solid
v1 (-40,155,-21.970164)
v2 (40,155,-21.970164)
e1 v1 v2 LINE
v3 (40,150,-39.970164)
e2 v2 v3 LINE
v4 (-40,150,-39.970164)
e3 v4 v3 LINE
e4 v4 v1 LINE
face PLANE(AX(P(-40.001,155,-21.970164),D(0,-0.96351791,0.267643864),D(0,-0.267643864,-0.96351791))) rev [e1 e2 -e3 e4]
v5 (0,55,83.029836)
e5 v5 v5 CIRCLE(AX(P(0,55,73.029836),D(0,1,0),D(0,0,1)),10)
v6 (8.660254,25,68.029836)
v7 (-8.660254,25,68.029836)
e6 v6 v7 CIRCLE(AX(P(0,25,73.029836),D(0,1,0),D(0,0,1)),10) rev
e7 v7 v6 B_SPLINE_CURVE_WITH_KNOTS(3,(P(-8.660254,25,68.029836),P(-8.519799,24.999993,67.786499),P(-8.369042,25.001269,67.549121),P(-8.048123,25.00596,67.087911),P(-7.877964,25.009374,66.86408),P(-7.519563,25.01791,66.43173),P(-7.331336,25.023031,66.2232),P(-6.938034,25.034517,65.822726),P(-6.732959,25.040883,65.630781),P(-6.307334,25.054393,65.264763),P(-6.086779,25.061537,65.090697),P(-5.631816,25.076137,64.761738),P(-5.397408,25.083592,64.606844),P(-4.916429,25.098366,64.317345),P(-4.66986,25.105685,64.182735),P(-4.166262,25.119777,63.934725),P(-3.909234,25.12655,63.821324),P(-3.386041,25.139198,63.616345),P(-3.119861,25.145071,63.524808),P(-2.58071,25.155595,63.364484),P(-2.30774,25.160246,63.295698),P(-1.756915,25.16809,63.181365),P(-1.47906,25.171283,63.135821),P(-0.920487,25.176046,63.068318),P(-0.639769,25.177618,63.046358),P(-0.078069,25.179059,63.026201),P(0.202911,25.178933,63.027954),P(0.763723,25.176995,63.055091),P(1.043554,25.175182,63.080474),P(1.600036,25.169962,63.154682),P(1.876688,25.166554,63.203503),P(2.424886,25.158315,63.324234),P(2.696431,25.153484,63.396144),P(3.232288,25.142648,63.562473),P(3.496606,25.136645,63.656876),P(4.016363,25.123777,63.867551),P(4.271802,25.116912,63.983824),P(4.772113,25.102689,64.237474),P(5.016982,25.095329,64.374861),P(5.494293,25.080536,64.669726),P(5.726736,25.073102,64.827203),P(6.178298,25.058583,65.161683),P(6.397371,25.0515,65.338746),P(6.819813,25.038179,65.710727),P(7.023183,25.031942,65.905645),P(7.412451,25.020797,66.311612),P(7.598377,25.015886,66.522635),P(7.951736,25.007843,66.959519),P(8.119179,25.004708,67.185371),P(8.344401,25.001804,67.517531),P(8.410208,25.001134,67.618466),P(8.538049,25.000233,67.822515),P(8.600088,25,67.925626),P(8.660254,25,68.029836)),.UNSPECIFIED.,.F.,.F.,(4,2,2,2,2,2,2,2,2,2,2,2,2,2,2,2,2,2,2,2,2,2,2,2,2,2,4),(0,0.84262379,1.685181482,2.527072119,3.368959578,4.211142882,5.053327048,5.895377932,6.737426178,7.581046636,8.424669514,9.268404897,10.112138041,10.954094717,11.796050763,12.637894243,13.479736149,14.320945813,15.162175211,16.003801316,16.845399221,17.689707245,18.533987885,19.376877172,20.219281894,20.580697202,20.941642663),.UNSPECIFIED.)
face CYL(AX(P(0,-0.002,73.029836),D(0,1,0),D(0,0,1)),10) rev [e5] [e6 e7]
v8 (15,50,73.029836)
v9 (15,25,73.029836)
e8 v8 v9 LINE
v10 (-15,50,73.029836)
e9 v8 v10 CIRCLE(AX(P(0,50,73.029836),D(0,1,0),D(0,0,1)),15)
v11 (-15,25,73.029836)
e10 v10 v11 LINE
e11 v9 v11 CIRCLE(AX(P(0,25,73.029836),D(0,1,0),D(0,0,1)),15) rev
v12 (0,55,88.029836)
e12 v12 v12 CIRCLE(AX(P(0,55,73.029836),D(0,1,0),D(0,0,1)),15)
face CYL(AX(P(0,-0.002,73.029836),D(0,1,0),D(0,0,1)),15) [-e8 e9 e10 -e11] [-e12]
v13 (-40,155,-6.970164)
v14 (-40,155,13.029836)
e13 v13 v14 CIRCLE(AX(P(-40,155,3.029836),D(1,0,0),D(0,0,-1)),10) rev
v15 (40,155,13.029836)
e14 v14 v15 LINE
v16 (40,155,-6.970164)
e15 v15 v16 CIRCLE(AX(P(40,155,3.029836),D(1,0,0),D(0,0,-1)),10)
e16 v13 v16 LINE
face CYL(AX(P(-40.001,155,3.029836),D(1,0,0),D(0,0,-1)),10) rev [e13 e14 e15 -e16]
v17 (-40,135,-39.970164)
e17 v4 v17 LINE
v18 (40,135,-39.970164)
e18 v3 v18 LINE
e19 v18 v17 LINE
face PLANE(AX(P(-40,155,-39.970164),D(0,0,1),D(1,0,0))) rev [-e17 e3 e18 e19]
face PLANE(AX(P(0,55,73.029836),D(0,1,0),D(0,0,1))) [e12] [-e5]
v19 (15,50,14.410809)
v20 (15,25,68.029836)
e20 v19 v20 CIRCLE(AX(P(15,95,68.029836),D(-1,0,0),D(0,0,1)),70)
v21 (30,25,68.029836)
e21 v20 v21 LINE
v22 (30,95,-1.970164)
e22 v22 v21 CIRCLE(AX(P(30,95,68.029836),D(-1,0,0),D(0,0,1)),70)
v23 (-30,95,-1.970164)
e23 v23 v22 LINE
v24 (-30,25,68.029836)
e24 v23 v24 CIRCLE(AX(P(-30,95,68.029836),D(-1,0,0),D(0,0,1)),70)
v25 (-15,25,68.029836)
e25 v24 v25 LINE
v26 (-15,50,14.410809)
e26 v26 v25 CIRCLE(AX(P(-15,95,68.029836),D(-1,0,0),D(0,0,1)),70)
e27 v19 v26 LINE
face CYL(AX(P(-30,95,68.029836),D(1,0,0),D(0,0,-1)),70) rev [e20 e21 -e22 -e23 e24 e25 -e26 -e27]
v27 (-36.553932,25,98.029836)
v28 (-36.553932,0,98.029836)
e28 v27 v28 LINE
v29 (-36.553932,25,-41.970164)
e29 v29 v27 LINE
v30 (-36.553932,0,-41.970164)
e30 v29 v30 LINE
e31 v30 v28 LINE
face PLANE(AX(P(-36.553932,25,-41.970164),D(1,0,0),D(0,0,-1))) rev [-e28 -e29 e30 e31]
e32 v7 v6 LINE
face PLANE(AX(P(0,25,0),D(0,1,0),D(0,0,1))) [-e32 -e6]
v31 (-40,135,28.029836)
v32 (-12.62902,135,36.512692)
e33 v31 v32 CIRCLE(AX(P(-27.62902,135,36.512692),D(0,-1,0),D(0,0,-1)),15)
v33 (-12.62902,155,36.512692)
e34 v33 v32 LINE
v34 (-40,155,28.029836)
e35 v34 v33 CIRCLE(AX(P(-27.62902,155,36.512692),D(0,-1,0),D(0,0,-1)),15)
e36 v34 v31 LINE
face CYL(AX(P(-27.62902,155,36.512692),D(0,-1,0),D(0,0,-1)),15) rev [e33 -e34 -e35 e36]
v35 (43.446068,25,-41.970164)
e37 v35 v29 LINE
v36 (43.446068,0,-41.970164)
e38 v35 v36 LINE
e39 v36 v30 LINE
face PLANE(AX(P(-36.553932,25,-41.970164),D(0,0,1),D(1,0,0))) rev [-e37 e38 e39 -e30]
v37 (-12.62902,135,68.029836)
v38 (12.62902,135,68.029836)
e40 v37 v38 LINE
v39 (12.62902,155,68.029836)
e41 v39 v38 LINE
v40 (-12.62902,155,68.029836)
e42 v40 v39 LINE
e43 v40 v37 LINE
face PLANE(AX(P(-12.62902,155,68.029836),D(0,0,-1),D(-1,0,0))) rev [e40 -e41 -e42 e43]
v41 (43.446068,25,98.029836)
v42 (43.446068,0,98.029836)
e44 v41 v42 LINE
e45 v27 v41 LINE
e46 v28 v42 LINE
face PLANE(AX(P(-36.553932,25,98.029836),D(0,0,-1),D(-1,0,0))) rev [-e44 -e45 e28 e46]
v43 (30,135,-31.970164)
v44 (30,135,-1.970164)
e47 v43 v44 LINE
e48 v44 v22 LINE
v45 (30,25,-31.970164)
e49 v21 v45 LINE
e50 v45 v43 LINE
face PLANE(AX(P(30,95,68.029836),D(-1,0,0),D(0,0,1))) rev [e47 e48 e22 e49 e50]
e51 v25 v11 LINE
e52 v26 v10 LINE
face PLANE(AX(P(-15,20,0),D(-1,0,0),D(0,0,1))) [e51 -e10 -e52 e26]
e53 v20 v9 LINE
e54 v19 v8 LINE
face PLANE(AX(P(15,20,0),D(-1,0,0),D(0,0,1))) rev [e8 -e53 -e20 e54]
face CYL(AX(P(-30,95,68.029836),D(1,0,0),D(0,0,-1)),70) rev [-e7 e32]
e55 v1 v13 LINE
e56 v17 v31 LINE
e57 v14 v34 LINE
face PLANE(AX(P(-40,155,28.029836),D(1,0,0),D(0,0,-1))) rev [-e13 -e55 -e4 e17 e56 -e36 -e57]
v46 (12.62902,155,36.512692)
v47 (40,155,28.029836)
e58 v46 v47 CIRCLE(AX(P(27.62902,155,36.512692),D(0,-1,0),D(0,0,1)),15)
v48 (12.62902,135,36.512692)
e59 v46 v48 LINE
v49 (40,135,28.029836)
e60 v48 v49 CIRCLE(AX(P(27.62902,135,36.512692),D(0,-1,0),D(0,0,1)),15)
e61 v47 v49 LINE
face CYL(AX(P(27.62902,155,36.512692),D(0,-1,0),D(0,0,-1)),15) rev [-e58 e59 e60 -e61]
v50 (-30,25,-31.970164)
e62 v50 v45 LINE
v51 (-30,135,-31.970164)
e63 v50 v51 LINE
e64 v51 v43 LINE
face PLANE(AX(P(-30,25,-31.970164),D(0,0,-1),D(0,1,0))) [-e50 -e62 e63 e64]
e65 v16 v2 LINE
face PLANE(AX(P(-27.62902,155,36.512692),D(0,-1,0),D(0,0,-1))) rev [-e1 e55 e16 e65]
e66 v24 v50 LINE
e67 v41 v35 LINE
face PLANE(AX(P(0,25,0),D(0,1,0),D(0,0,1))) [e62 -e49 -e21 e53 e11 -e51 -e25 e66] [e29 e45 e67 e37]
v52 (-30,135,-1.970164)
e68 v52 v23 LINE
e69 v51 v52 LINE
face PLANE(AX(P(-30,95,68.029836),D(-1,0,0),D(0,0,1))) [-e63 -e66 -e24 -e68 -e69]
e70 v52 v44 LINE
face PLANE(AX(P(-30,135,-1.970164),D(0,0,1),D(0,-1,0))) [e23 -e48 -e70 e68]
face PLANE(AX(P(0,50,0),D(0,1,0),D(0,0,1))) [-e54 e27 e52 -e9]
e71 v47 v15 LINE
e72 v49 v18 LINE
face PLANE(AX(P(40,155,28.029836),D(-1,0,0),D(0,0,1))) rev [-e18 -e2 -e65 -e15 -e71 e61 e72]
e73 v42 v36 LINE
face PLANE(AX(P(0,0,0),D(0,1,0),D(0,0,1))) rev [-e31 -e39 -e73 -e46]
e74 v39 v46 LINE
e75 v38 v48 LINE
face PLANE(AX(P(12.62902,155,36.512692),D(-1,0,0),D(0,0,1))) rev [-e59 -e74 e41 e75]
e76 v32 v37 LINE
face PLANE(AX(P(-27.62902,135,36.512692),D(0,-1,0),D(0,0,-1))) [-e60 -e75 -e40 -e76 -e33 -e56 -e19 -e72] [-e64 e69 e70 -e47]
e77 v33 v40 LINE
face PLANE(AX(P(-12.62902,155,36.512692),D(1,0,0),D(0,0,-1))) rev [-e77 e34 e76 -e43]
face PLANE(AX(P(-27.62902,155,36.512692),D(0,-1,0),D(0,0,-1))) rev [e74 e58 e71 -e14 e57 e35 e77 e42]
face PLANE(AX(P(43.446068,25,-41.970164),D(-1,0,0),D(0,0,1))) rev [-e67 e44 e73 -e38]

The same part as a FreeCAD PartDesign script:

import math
import FreeCAD as App
import Part
import Sketcher

V = App.Vector
Q = App.Units.Quantity

doc = App.newDocument("Part")
body = doc.addObject("PartDesign::Body", "Body")

# Sketch on XZ plane
sketch1 = body.newObject("Sketcher::SketchObject", "Sketch")
sketch1.AttachmentSupport = (doc.getObject("XZ_Plane"), [""])
sketch1.MapMode = "FlatFace"
sketch1.addGeometry(Part.LineSegment(V(-36.553932, -41.970164, 0), V(-36.553932, 98.029836, 0)), False)
sketch1.addGeometry(Part.LineSegment(V(-36.553932, 98.029836, 0), V(43.446068, 98.029836, 0)), False)
sketch1.addGeometry(Part.LineSegment(V(43.446068, 98.029836, 0), V(43.446068, -41.970164, 0)), False)
sketch1.addGeometry(Part.LineSegment(V(43.446068, -41.970164, 0), V(-36.553932, -41.970164, 0)), False)
sketch1.addConstraint(Sketcher.Constraint("Coincident", 0, 2, 1, 1))
sketch1.addConstraint(Sketcher.Constraint("Coincident", 1, 2, 2, 1))
sketch1.addConstraint(Sketcher.Constraint("Coincident", 2, 2, 3, 1))
sketch1.addConstraint(Sketcher.Constraint("Coincident", 3, 2, 0, 1))
sketch1.addConstraint(Sketcher.Constraint("Vertical", 0))
sketch1.addConstraint(Sketcher.Constraint("Horizontal", 1))
sketch1.addConstraint(Sketcher.Constraint("Vertical", 2))
sketch1.addConstraint(Sketcher.Constraint("Horizontal", 3))
sketch1.addConstraint(Sketcher.Constraint("DistanceX", 1, 1, 1, 2, Q("80 mm")))
sketch1.addConstraint(Sketcher.Constraint("DistanceY", 0, 1, 0, 2, Q("140 mm")))
sketch1.addConstraint(Sketcher.Constraint("DistanceX", 0, 2, -1, 1, Q("36.553932 mm")))
sketch1.addConstraint(Sketcher.Constraint("DistanceY", -1, 1, 0, 2, Q("98.029836 mm")))
pad1 = body.newObject("PartDesign::Pad", "Pad")
pad1.Profile = sketch1
pad1.Length = 25
pad1.Reversed = True

# Sketch on YZ plane
sketch2 = body.newObject("Sketcher::SketchObject", "Sketch001")
sketch2.AttachmentSupport = (doc.getObject("YZ_Plane"), [""])
sketch2.MapMode = "FlatFace"
sketch2.addGeometry(Part.LineSegment(V(25, -31.970164, 0), V(135, -31.970164, 0)), False)
sketch2.addGeometry(Part.LineSegment(V(135, -31.970164, 0), V(135, -1.970164, 0)), False)
sketch2.addGeometry(Part.LineSegment(V(135, -1.970164, 0), V(95, -1.970164, 0)), False)
sketch2.addGeometry(Part.ArcOfCircle(Part.Circle(V(95, 68.029836, 0), V(0, 0, 1), 70), math.radians(180), math.radians(270)), False)
sketch2.addGeometry(Part.LineSegment(V(25, 68.029836, 0), V(25, -31.970164, 0)), False)
sketch2.addConstraint(Sketcher.Constraint("Coincident", 0, 2, 1, 1))
sketch2.addConstraint(Sketcher.Constraint("Coincident", 1, 2, 2, 1))
sketch2.addConstraint(Sketcher.Constraint("Tangent", 2, 2, 3, 2))
sketch2.addConstraint(Sketcher.Constraint("Tangent", 3, 1, 4, 1))
sketch2.addConstraint(Sketcher.Constraint("Coincident", 4, 2, 0, 1))
sketch2.addConstraint(Sketcher.Constraint("Horizontal", 0))
sketch2.addConstraint(Sketcher.Constraint("Vertical", 1))
sketch2.addConstraint(Sketcher.Constraint("Horizontal", 2))
sketch2.addConstraint(Sketcher.Constraint("Vertical", 4))
sketch2.addConstraint(Sketcher.Constraint("Radius", 3, Q("70 mm")))
sketch2.addConstraint(Sketcher.Constraint("DistanceX", 0, 1, 0, 2, Q("110 mm")))
sketch2.addConstraint(Sketcher.Constraint("DistanceY", 1, 1, 1, 2, Q("30 mm")))
sketch2.addConstraint(Sketcher.Constraint("DistanceX", -1, 1, 3, 3, Q("95 mm")))
sketch2.addConstraint(Sketcher.Constraint("DistanceY", -1, 1, 3, 3, Q("68.029836 mm")))
pad2 = body.newObject("PartDesign::Pad", "Pad001")
pad2.Profile = sketch2
pad2.Type = "TwoLengths"
pad2.Length = 30
pad2.Length2 = 30

# Sketch on XZ plane
sketch3 = body.newObject("Sketcher::SketchObject", "Sketch002")
sketch3.AttachmentSupport = (doc.getObject("XZ_Plane"), [""])
sketch3.MapMode = "FlatFace"
sketch3.AttachmentOffset = App.Placement(V(0, 0, -55), App.Rotation())
sketch3.addGeometry(Part.Circle(V(0, 73.029836, 0), V(0, 0, 1), 15), False)
sketch3.addGeometry(Part.Circle(V(0, 73.029836, 0), V(0, 0, 1), 10), False)
sketch3.addConstraint(Sketcher.Constraint("Coincident", 1, 3, 0, 3))
sketch3.addConstraint(Sketcher.Constraint("PointOnObject", 0, 3, -2))
sketch3.addConstraint(Sketcher.Constraint("Diameter", 0, Q("30 mm")))
sketch3.addConstraint(Sketcher.Constraint("Diameter", 1, Q("20 mm")))
sketch3.addConstraint(Sketcher.Constraint("DistanceY", -1, 1, 0, 3, Q("73.029836 mm")))
pad3 = body.newObject("PartDesign::Pad", "Pad002")
pad3.Profile = sketch3
pad3.Type = "UpToFirst"

# Sketch on XZ plane
sketch4 = body.newObject("Sketcher::SketchObject", "Sketch003")
sketch4.AttachmentSupport = (doc.getObject("XZ_Plane"), [""])
sketch4.MapMode = "FlatFace"
sketch4.AttachmentOffset = App.Placement(V(0, 0, -50), App.Rotation())
sketch4.addGeometry(Part.ArcOfCircle(Part.Circle(V(0, 73.029836, 0), V(0, 0, 1), 15), math.radians(-180), math.radians(0)), False)
sketch4.addGeometry(Part.LineSegment(V(15, 73.029836, 0), V(15, 7.547322, 0)), False)
sketch4.addGeometry(Part.LineSegment(V(15, 7.547322, 0), V(-15, 7.547322, 0)), False)
sketch4.addGeometry(Part.LineSegment(V(-15, 7.547322, 0), V(-15, 73.029836, 0)), False)
sketch4.addConstraint(Sketcher.Constraint("Tangent", 0, 2, 1, 1))
sketch4.addConstraint(Sketcher.Constraint("Coincident", 1, 2, 2, 1))
sketch4.addConstraint(Sketcher.Constraint("Coincident", 2, 2, 3, 1))
sketch4.addConstraint(Sketcher.Constraint("Tangent", 3, 2, 0, 1))
sketch4.addConstraint(Sketcher.Constraint("Vertical", 1))
sketch4.addConstraint(Sketcher.Constraint("Horizontal", 2))
sketch4.addConstraint(Sketcher.Constraint("Vertical", 3))
sketch4.addConstraint(Sketcher.Constraint("PointOnObject", 0, 3, -2))
sketch4.addConstraint(Sketcher.Constraint("Radius", 0, Q("15 mm")))
sketch4.addConstraint(Sketcher.Constraint("DistanceY", 1, 2, 1, 1, Q("65.482513 mm")))
sketch4.addConstraint(Sketcher.Constraint("DistanceY", -1, 1, 0, 3, Q("73.029836 mm")))
pad4 = body.newObject("PartDesign::Pad", "Pad003")
pad4.Profile = sketch4
pad4.Length = 30

# Sketch on XZ plane
sketch5 = body.newObject("Sketcher::SketchObject", "Sketch004")
sketch5.AttachmentSupport = (doc.getObject("XZ_Plane"), [""])
sketch5.MapMode = "FlatFace"
sketch5.AttachmentOffset = App.Placement(V(0, 0, -135), App.Rotation())
sketch5.addGeometry(Part.LineSegment(V(12.62902, 68.029836, 0), V(12.62902, 36.512692, 0)), False)
sketch5.addGeometry(Part.ArcOfCircle(Part.Circle(V(27.62902, 36.512692, 0), V(0, 0, 1), 15), math.radians(180), math.radians(325.56133)), False)
sketch5.addGeometry(Part.LineSegment(V(40, 28.029836, 0), V(40, -39.970164, 0)), False)
sketch5.addGeometry(Part.LineSegment(V(40, -39.970164, 0), V(-40, -39.970164, 0)), False)
sketch5.addGeometry(Part.LineSegment(V(-40, -39.970164, 0), V(-40, 28.029836, 0)), False)
sketch5.addGeometry(Part.ArcOfCircle(Part.Circle(V(-27.62902, 36.512692, 0), V(0, 0, 1), 15), math.radians(-145.56133), math.radians(0)), False)
sketch5.addGeometry(Part.LineSegment(V(-12.62902, 36.512692, 0), V(-12.62902, 68.029836, 0)), False)
sketch5.addGeometry(Part.LineSegment(V(-12.62902, 68.029836, 0), V(12.62902, 68.029836, 0)), False)
sketch5.addConstraint(Sketcher.Constraint("Tangent", 0, 2, 1, 1))
sketch5.addConstraint(Sketcher.Constraint("Coincident", 1, 2, 2, 1))
sketch5.addConstraint(Sketcher.Constraint("Coincident", 2, 2, 3, 1))
sketch5.addConstraint(Sketcher.Constraint("Coincident", 3, 2, 4, 1))
sketch5.addConstraint(Sketcher.Constraint("Coincident", 4, 2, 5, 1))
sketch5.addConstraint(Sketcher.Constraint("Tangent", 5, 2, 6, 1))
sketch5.addConstraint(Sketcher.Constraint("Coincident", 6, 2, 7, 1))
sketch5.addConstraint(Sketcher.Constraint("Coincident", 7, 2, 0, 1))
sketch5.addConstraint(Sketcher.Constraint("Vertical", 0))
sketch5.addConstraint(Sketcher.Constraint("Vertical", 2))
sketch5.addConstraint(Sketcher.Constraint("Horizontal", 3))
sketch5.addConstraint(Sketcher.Constraint("Vertical", 4))
sketch5.addConstraint(Sketcher.Constraint("Vertical", 6))
sketch5.addConstraint(Sketcher.Constraint("Horizontal", 7))
sketch5.addConstraint(Sketcher.Constraint("Equal", 1, 5))
sketch5.addConstraint(Sketcher.Constraint("Symmetric", 1, 3, 5, 3, -2))
sketch5.addConstraint(Sketcher.Constraint("Horizontal", 1, 2, 4, 2))
sketch5.addConstraint(Sketcher.Constraint("Radius", 1, Q("15 mm")))
sketch5.addConstraint(Sketcher.Constraint("DistanceX", 3, 2, 3, 1, Q("80 mm")))
sketch5.addConstraint(Sketcher.Constraint("DistanceY", 2, 2, 2, 1, Q("68 mm")))
sketch5.addConstraint(Sketcher.Constraint("DistanceY", 4, 2, 6, 2, Q("40 mm")))
sketch5.addConstraint(Sketcher.Constraint("DistanceX", 7, 1, 7, 2, Q("25.25804 mm")))
sketch5.addConstraint(Sketcher.Constraint("DistanceY", -1, 1, 1, 3, Q("36.512692 mm")))
pad5 = body.newObject("PartDesign::Pad", "Pad004")
pad5.Profile = sketch5
pad5.Length = 20
pad5.Reversed = True

# Sketch on YZ plane
sketch6 = body.newObject("Sketcher::SketchObject", "Sketch005")
sketch6.AttachmentSupport = (doc.getObject("YZ_Plane"), [""])
sketch6.MapMode = "FlatFace"
sketch6.AttachmentOffset = App.Placement(V(0, 0, 40), App.Rotation())
sketch6.addGeometry(Part.LineSegment(V(155, -39.970164, 0), V(155, -21.970164, 0)), False)
sketch6.addGeometry(Part.LineSegment(V(155, -21.970164, 0), V(150, -39.970164, 0)), False)
sketch6.addGeometry(Part.LineSegment(V(150, -39.970164, 0), V(155, -39.970164, 0)), False)
sketch6.addConstraint(Sketcher.Constraint("Coincident", 0, 2, 1, 1))
sketch6.addConstraint(Sketcher.Constraint("Coincident", 1, 2, 2, 1))
sketch6.addConstraint(Sketcher.Constraint("Coincident", 2, 2, 0, 1))
sketch6.addConstraint(Sketcher.Constraint("Vertical", 0))
sketch6.addConstraint(Sketcher.Constraint("Horizontal", 2))
sketch6.addConstraint(Sketcher.Constraint("DistanceX", 2, 1, 2, 2, Q("5 mm")))
sketch6.addConstraint(Sketcher.Constraint("DistanceY", 0, 1, 0, 2, Q("18 mm")))
sketch6.addConstraint(Sketcher.Constraint("DistanceX", -1, 1, 0, 2, Q("155 mm")))
sketch6.addConstraint(Sketcher.Constraint("DistanceY", 0, 2, -1, 1, Q("21.970164 mm")))
pocket1 = body.newObject("PartDesign::Pocket", "Pocket")
pocket1.Profile = sketch6
pocket1.Type = "UpToFirst"

# Sketch on YZ plane
sketch7 = body.newObject("Sketcher::SketchObject", "Sketch006")
sketch7.AttachmentSupport = (doc.getObject("YZ_Plane"), [""])
sketch7.MapMode = "FlatFace"
sketch7.AttachmentOffset = App.Placement(V(0, 0, 40), App.Rotation())
sketch7.addGeometry(Part.LineSegment(V(155, -6.970164, 0), V(155, 13.029836, 0)), False)
sketch7.addGeometry(Part.ArcOfCircle(Part.Circle(V(155, 3.029836, 0), V(0, 0, 1), 10), math.radians(90), math.radians(270)), False)
sketch7.addConstraint(Sketcher.Constraint("Coincident", 0, 1, 1, 2))
sketch7.addConstraint(Sketcher.Constraint("Coincident", 1, 1, 0, 2))
sketch7.addConstraint(Sketcher.Constraint("Vertical", 0))
sketch7.addConstraint(Sketcher.Constraint("Vertical", 1, 3, 0, 1))
sketch7.addConstraint(Sketcher.Constraint("Radius", 1, Q("10 mm")))
sketch7.addConstraint(Sketcher.Constraint("DistanceX", -1, 1, 1, 3, Q("155 mm")))
sketch7.addConstraint(Sketcher.Constraint("DistanceY", -1, 1, 1, 3, Q("3.029836 mm")))
pocket2 = body.newObject("PartDesign::Pocket", "Pocket001")
pocket2.Profile = sketch7
pocket2.Type = "UpToFirst"

doc.recompute()
